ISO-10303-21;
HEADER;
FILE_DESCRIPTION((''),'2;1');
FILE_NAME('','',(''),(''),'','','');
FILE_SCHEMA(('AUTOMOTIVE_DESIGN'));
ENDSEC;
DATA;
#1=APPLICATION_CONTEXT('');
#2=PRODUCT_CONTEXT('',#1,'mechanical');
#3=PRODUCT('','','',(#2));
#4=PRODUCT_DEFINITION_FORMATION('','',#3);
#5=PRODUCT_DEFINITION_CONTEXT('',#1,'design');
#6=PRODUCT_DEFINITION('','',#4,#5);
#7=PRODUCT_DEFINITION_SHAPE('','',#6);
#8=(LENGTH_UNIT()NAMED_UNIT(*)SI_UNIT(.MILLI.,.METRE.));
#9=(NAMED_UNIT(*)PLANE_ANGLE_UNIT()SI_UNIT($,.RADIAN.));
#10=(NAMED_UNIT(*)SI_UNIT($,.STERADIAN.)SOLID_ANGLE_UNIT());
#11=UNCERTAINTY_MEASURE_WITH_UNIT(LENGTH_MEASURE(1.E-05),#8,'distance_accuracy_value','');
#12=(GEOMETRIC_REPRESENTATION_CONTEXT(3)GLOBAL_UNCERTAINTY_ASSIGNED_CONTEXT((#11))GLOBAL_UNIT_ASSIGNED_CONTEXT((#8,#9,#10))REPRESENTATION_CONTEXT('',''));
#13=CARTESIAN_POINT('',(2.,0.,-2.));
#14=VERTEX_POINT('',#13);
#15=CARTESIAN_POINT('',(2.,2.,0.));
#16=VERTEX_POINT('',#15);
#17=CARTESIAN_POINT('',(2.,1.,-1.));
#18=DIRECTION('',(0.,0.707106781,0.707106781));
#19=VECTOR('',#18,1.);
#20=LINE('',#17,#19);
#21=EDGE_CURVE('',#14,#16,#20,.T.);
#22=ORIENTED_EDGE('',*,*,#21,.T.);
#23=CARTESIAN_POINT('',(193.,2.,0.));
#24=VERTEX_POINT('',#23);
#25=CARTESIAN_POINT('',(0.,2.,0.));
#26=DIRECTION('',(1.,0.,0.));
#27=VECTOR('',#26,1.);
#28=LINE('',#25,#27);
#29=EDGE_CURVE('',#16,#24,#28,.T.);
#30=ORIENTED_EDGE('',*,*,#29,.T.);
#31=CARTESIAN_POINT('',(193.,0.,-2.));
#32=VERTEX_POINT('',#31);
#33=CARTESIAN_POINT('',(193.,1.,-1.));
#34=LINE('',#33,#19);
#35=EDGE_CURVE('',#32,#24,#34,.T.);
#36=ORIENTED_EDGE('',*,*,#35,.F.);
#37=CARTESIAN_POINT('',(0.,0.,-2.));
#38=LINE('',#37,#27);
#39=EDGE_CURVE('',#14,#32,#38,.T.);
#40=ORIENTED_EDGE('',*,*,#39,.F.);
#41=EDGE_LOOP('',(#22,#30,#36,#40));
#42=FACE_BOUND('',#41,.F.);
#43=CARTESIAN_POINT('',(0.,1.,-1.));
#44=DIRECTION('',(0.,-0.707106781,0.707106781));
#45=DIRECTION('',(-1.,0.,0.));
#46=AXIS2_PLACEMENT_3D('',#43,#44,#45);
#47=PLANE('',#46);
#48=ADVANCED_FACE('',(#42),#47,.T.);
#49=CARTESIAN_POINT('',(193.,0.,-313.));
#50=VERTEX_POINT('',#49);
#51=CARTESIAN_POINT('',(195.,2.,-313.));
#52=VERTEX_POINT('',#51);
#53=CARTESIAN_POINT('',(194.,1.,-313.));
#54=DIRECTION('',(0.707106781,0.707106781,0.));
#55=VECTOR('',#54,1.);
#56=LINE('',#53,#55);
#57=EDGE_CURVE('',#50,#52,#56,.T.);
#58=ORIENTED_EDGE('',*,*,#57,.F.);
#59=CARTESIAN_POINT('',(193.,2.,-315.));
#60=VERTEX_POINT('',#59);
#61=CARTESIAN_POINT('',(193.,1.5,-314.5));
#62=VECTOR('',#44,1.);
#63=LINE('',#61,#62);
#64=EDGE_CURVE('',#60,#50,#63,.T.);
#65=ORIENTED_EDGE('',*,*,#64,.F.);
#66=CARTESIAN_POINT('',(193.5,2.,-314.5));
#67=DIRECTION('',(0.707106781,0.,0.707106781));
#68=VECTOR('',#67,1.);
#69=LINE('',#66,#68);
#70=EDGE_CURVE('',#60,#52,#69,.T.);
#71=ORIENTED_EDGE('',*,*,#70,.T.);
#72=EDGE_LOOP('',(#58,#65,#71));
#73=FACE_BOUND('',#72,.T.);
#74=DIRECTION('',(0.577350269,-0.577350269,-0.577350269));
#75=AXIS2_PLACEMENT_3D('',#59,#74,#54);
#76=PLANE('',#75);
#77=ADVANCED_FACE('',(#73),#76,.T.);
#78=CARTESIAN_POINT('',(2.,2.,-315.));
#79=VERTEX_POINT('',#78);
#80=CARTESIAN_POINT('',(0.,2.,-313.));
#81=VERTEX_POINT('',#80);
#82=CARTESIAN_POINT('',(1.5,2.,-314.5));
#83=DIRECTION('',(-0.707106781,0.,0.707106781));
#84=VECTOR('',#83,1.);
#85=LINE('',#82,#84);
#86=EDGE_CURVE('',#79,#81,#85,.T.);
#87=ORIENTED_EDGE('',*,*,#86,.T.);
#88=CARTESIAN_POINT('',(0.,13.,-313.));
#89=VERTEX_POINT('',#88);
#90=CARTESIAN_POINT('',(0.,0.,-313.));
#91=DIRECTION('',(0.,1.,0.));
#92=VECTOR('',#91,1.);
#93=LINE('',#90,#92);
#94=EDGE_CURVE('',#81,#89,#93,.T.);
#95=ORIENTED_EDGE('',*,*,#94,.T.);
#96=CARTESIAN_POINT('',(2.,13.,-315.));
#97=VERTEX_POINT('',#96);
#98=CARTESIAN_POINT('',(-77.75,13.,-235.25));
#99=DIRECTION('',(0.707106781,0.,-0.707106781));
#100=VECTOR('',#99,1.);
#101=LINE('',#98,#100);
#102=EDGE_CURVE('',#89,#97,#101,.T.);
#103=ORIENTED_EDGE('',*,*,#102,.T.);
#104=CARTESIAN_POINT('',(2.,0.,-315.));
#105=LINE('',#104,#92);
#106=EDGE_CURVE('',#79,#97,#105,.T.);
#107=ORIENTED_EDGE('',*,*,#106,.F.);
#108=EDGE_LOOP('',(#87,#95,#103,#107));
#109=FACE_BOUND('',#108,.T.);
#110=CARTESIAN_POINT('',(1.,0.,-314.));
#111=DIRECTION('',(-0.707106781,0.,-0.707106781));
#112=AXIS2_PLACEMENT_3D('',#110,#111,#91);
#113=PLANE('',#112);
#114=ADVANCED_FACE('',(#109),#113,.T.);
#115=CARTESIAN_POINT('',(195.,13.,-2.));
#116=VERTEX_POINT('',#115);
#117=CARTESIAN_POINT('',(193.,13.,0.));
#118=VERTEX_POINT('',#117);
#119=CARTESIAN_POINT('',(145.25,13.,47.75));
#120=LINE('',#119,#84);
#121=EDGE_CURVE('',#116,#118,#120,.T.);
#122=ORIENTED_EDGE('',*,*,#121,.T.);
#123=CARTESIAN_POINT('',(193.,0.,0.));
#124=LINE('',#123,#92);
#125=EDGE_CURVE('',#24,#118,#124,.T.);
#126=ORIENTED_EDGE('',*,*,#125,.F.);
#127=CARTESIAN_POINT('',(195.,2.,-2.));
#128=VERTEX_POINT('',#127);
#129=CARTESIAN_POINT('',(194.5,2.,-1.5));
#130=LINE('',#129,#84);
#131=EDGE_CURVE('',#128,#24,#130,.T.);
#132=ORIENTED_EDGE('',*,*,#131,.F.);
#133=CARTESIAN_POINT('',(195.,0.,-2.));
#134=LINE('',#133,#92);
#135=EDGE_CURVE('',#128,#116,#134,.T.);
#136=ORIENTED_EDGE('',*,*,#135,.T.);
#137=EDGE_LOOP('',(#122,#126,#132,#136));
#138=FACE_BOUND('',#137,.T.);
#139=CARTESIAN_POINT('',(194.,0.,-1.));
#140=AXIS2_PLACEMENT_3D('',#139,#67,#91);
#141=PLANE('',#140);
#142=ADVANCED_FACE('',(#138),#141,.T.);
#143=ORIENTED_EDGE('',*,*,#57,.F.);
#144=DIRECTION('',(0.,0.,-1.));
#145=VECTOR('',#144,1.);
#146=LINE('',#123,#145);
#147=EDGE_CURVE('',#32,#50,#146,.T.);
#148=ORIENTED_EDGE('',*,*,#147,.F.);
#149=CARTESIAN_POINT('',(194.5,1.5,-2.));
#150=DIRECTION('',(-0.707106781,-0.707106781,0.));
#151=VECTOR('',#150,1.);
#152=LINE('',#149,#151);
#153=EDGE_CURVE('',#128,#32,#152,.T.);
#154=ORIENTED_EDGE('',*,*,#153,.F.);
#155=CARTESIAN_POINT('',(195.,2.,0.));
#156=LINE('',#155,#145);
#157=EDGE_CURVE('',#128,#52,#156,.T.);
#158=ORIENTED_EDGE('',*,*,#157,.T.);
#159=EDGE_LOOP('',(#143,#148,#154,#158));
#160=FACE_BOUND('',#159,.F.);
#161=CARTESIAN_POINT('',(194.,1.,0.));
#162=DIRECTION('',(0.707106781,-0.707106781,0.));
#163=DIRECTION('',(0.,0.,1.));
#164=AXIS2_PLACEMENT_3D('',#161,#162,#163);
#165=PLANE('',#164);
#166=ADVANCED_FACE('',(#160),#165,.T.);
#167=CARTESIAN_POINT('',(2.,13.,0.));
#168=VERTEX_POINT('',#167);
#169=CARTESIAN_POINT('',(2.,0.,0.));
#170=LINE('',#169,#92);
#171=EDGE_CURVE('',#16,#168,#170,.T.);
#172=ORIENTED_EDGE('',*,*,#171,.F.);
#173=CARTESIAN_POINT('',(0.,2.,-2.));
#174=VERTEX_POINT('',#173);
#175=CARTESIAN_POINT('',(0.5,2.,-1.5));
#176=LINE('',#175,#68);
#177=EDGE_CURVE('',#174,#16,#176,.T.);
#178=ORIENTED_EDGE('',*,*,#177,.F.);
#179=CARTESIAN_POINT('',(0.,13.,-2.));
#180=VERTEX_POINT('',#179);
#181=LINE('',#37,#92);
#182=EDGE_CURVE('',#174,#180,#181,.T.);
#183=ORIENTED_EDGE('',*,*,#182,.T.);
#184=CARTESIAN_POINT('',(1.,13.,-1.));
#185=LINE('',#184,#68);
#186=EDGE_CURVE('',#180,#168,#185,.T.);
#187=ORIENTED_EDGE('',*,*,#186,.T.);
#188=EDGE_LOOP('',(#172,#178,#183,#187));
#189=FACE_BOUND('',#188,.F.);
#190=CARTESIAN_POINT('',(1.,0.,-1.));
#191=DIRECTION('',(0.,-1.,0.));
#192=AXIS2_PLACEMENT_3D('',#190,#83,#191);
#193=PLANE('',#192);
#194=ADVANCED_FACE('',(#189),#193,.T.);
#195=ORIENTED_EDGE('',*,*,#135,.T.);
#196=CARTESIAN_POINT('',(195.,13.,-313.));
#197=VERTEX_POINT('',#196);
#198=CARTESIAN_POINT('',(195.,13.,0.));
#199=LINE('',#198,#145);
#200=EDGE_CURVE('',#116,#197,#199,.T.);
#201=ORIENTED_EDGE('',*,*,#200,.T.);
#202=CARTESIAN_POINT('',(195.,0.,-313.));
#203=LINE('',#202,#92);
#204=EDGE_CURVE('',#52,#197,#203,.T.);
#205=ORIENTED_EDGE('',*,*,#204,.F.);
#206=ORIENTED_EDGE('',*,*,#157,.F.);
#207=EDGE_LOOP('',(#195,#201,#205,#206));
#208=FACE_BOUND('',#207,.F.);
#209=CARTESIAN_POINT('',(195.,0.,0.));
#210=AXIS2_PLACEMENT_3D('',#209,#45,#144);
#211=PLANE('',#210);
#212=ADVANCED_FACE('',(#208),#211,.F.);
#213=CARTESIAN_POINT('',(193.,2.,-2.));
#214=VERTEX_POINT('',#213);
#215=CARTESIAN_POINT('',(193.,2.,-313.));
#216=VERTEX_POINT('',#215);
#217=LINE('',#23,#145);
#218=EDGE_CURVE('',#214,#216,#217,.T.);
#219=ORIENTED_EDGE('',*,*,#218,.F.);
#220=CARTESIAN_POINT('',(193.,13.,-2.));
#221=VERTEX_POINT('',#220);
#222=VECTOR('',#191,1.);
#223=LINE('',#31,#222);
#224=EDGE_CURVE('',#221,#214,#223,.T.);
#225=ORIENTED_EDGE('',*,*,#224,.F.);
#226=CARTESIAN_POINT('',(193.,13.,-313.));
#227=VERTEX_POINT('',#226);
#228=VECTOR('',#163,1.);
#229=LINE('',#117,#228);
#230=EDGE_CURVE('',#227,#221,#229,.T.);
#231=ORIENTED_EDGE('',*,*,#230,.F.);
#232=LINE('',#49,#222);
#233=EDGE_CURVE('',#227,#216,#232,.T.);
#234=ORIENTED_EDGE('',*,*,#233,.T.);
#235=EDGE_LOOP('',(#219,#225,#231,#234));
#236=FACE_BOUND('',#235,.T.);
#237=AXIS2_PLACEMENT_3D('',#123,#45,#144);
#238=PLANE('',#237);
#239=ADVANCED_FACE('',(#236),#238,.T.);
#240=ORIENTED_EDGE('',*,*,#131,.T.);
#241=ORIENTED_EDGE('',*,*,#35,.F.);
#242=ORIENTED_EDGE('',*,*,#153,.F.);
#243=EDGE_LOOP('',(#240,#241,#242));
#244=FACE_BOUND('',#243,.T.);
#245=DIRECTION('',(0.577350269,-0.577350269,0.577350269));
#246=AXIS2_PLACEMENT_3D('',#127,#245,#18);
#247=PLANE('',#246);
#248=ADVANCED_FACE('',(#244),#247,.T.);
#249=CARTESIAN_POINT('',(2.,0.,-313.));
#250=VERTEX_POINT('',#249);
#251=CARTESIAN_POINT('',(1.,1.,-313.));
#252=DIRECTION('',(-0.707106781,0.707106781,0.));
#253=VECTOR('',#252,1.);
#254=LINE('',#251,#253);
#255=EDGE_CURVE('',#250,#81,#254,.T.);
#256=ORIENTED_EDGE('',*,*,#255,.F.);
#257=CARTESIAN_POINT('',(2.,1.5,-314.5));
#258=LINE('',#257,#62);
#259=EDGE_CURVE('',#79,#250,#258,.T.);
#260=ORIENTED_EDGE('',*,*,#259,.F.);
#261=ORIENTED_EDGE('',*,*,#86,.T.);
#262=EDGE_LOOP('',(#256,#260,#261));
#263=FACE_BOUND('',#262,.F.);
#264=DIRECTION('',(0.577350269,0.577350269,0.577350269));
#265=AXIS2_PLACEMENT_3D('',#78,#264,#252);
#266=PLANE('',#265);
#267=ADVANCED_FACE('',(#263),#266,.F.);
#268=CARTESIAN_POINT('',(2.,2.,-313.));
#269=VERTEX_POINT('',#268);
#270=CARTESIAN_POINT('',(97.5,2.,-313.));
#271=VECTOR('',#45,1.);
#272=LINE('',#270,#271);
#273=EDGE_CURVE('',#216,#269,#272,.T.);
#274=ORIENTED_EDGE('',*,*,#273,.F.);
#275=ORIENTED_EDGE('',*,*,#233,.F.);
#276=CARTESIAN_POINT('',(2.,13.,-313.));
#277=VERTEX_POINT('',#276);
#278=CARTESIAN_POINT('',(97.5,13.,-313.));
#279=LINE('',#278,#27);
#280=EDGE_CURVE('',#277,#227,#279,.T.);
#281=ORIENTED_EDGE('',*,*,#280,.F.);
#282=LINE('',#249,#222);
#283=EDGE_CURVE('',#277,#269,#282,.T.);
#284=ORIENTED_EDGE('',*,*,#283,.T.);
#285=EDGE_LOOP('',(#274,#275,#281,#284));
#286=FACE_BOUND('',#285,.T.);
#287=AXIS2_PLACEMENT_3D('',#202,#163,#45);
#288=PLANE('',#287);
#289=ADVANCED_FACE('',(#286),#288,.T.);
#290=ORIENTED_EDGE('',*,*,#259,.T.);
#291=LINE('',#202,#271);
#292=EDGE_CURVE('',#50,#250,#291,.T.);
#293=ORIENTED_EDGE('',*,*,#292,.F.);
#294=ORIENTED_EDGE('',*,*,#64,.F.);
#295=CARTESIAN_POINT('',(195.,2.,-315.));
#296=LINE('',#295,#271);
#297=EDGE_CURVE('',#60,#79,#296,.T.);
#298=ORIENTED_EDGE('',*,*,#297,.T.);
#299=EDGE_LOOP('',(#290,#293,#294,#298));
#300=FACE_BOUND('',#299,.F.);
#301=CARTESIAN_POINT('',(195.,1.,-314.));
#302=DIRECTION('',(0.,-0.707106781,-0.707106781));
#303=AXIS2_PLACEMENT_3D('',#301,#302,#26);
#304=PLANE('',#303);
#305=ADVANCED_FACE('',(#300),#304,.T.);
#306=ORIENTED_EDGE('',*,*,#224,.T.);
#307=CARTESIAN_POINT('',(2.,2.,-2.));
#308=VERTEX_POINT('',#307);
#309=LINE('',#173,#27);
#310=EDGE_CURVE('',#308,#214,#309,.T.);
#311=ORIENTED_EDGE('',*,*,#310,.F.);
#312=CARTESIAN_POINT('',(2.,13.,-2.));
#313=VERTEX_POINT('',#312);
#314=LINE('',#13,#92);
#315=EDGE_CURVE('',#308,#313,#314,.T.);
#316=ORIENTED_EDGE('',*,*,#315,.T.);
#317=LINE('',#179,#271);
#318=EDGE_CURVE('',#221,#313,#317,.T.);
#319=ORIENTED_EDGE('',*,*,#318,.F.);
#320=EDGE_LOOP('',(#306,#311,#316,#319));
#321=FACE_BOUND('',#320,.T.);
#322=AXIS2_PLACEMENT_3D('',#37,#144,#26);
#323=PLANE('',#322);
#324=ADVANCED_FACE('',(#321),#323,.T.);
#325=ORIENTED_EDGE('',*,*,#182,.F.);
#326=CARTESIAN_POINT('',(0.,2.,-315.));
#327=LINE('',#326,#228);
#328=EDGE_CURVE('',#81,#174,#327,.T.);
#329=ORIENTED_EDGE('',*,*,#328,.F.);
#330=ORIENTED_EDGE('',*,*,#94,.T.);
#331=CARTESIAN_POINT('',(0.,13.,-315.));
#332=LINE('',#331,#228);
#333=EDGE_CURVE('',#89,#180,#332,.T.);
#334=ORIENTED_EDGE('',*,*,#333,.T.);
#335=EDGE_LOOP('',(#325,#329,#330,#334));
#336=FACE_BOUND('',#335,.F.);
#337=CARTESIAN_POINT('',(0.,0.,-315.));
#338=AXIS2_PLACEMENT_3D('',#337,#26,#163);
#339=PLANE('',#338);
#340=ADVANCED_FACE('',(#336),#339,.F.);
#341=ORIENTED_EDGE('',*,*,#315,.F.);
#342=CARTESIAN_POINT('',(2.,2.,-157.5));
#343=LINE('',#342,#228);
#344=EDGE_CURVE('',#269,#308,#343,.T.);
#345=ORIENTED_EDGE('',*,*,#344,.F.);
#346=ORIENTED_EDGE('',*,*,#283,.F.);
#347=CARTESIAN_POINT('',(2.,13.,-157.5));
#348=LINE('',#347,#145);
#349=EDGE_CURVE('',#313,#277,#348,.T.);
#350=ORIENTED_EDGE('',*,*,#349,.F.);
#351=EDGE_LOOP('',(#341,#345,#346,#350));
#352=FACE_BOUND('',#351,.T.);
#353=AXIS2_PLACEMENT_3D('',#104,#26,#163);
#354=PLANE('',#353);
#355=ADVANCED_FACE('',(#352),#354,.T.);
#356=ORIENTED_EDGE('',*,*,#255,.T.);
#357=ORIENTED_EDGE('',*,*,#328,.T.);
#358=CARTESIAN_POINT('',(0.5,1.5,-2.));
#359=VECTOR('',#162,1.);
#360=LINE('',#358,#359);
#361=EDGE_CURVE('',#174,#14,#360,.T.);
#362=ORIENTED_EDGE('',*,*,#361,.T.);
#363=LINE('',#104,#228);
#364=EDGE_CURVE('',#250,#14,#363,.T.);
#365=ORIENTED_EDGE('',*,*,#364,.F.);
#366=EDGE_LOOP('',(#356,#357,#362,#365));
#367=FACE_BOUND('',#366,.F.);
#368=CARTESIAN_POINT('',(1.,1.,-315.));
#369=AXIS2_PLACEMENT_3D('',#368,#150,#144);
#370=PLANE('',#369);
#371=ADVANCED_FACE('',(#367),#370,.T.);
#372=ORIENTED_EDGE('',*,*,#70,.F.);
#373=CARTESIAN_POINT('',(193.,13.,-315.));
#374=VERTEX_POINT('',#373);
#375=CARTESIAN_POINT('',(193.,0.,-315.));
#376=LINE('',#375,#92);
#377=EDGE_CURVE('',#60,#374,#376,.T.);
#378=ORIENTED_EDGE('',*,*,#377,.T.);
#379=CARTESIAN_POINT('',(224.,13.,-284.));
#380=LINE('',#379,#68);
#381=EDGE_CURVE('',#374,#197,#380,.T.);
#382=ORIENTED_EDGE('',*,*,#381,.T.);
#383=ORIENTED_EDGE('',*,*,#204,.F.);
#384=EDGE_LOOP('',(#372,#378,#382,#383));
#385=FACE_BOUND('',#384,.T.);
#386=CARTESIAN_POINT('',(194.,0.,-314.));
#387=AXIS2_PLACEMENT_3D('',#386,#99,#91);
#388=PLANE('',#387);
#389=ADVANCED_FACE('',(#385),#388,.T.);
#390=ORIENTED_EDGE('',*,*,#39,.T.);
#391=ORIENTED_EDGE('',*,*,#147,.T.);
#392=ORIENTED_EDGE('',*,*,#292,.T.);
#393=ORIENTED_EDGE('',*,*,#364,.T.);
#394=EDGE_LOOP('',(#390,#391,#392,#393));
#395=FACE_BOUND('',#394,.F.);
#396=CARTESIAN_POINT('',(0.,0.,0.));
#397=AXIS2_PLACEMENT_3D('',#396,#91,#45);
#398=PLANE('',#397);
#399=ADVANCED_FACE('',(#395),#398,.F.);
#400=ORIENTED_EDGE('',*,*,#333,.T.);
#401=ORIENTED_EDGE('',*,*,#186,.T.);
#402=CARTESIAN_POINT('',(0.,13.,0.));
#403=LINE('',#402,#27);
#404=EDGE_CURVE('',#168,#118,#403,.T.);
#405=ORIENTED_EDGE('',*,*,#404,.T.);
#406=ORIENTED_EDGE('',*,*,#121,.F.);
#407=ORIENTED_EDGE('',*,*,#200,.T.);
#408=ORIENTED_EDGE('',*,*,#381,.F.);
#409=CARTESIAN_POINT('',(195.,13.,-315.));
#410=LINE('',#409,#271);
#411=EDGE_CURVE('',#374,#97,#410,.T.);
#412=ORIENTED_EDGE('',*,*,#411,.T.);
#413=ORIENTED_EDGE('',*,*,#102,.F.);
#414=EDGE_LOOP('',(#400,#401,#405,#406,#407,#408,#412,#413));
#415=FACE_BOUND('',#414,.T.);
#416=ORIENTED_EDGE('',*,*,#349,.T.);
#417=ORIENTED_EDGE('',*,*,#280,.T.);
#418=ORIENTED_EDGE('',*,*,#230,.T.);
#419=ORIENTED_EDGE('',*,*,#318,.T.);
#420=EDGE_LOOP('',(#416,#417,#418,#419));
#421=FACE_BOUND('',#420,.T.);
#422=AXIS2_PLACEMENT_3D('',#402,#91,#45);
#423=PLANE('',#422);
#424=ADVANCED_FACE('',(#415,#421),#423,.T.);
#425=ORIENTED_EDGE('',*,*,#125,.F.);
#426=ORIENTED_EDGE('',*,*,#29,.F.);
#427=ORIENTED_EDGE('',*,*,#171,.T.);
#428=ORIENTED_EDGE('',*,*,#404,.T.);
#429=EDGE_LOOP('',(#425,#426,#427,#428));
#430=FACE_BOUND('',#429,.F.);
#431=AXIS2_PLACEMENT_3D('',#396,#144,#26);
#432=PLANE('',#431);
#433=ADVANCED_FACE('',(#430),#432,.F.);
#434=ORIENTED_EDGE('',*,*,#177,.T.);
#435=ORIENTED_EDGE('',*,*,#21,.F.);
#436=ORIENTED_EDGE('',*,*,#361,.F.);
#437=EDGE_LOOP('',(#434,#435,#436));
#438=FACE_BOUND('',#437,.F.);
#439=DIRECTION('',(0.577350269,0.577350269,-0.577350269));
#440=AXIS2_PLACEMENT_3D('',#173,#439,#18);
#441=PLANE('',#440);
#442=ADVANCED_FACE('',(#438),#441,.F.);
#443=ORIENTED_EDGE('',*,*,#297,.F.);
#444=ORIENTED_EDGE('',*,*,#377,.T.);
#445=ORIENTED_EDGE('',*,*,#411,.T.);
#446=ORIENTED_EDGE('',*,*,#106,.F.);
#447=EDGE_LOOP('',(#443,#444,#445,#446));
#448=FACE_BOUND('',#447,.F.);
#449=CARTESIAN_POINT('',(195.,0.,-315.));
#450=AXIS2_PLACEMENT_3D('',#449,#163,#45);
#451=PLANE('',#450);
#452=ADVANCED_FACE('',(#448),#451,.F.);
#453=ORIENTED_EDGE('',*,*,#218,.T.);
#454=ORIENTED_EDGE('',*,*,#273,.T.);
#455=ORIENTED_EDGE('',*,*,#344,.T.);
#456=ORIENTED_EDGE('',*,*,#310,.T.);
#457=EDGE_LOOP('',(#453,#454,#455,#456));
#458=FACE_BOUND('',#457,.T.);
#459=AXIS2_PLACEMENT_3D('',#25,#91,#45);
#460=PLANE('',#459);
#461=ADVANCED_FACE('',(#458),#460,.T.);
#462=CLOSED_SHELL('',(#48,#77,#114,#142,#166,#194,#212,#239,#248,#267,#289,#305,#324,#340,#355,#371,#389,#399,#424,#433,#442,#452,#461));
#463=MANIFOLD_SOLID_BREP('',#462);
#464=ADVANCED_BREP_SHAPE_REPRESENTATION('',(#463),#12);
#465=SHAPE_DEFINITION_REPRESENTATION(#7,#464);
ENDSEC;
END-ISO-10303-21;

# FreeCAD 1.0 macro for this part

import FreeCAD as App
import Part
import Sketcher
from FreeCAD import Vector
Q = App.Units.Quantity


def edges_at(feature, points):
    """Names of the edges that pass closest to the given points."""
    edges = feature.Shape.Edges
    near = lambda p: min(range(len(edges)), key=lambda i: edges[i].distToShape(Part.Vertex(*p))[0])
    return sorted({f"Edge{near(p) + 1}" for p in points})


def faces_at(feature, points):
    """Names of the faces that lie closest to the given points."""
    faces = feature.Shape.Faces
    near = lambda p: min(range(len(faces)), key=lambda i: faces[i].distToShape(Part.Vertex(*p))[0])
    return sorted({f"Face{near(p) + 1}" for p in points})

doc = App.newDocument("Part")
params = doc.addObject("Spreadsheet::Sheet", "Params")
for row, (alias, value) in enumerate([
    ("sketch1_width", "195 mm"),
    ("sketch1_height", "315 mm"),
    ("pad1_length", "13 mm"),
    ("thickness_wall", "2 mm"),
    ("chamfer_size", "2 mm"),
], start=1):
    params.set(f"A{row}", alias)
    params.set(f"B{row}", "=" + value)
    params.setAlias(f"B{row}", alias)

body = doc.addObject("PartDesign::Body", "Body")

# Sketch on XZ plane
sketch1 = body.newObject("Sketcher::SketchObject", "Sketch")
sketch1.AttachmentSupport = (doc.getObject("XZ_Plane"), [""])
sketch1.MapMode = "FlatFace"
sketch1.addGeometry(Part.LineSegment(Vector(0, -315, 0), Vector(0, 0, 0)), False)
sketch1.addGeometry(Part.LineSegment(Vector(0, 0, 0), Vector(195, 0, 0)), False)
sketch1.addGeometry(Part.LineSegment(Vector(195, 0, 0), Vector(195, -315, 0)), False)
sketch1.addGeometry(Part.LineSegment(Vector(195, -315, 0), Vector(0, -315, 0)), False)
sketch1.addConstraint(Sketcher.Constraint("Coincident", 0, 2, 1, 1))
sketch1.addConstraint(Sketcher.Constraint("Coincident", 1, 2, 2, 1))
sketch1.addConstraint(Sketcher.Constraint("Coincident", 2, 2, 3, 1))
sketch1.addConstraint(Sketcher.Constraint("Coincident", 3, 2, 0, 1))
sketch1.addConstraint(Sketcher.Constraint("Vertical", 0))
sketch1.addConstraint(Sketcher.Constraint("Horizontal", 1))
sketch1.addConstraint(Sketcher.Constraint("Vertical", 2))
sketch1.addConstraint(Sketcher.Constraint("Horizontal", 3))
sketch1.addConstraint(Sketcher.Constraint("Coincident", 0, 2, -1, 1))
sketch1.addConstraint(Sketcher.Constraint("DistanceX", 1, 1, 1, 2, Q("195 mm")))
sketch1.addConstraint(Sketcher.Constraint("DistanceY", 0, 1, 0, 2, Q("315 mm")))
sketch1.setExpression("Constraints[9]", "Params.sketch1_width")
sketch1.setExpression("Constraints[10]", "Params.sketch1_height")
pad1 = body.newObject("PartDesign::Pad", "Pad")
pad1.Profile = sketch1
pad1.setExpression("Length", "Params.pad1_length")
pad1.Reversed = True
doc.recompute()

thickness = body.newObject("PartDesign::Thickness", "Thickness")
thickness.Base = (pad1, faces_at(pad1, [(65, 13, -210)]))
thickness.setExpression("Value", "Params.thickness_wall")
thickness.Reversed = True
thickness.Join = "Intersection"
doc.recompute()

chamfer = body.newObject("PartDesign::Chamfer", "Chamfer")
chamfer.Base = (thickness, edges_at(thickness, [
    (97.5, 0, 0),
    (0, 0, -157.5),
    (195, 0, -157.5),
    (97.5, 0, -315),
    (195, 6.5, -315),
    (195, 6.5, 0),
    (0, 6.5, 0),
    (0, 6.5, -315),
]))
chamfer.setExpression("Size", "Params.chamfer_size")

doc.recompute()
